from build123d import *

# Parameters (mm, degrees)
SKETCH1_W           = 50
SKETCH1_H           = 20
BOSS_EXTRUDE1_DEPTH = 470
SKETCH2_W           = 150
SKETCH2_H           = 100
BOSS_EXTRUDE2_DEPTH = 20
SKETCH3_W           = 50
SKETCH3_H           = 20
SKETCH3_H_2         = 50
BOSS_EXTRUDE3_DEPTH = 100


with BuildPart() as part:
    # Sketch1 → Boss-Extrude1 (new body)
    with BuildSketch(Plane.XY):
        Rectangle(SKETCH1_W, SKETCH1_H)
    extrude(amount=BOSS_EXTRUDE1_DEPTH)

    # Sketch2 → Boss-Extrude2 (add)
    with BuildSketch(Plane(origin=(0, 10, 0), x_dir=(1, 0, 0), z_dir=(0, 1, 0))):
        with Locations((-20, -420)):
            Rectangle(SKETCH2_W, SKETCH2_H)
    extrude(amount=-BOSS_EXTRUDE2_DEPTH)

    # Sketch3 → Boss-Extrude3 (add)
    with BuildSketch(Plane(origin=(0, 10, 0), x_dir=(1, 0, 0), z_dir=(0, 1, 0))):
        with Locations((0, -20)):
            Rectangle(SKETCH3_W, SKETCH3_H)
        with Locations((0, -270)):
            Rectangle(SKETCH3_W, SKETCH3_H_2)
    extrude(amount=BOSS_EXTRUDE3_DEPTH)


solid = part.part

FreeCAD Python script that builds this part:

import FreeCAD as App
import Part
import Sketcher
from FreeCAD import Vector
Q = App.Units.Quantity


def add_polygon(sketch, points):
    """Adds a closed chain of lines whose ends are joined by coincident constraints."""
    first, n = sketch.GeometryCount, len(points)
    for a, b in zip(points, points[1:] + points[:1]):
        sketch.addGeometry(Part.LineSegment(App.Vector(*a, 0), App.Vector(*b, 0)), False)
    for i in range(n):
        sketch.addConstraint(Sketcher.Constraint("Coincident", first + i, 2, first + (i + 1) % n, 1))

doc = App.newDocument("Part")
body = doc.addObject("PartDesign::Body", "Body")

# Sketch on XY plane
sketch1 = body.newObject("Sketcher::SketchObject", "Sketch")
sketch1.AttachmentSupport = (doc.getObject("XY_Plane"), [""])
sketch1.MapMode = "FlatFace"
add_polygon(sketch1, [(-25, 10), (-25, -10), (25, -10), (25, 10)])  # lines 0-3
sketch1.addConstraint(Sketcher.Constraint("Vertical", 0))
sketch1.addConstraint(Sketcher.Constraint("Horizontal", 1))
sketch1.addConstraint(Sketcher.Constraint("Vertical", 2))
sketch1.addConstraint(Sketcher.Constraint("Horizontal", 3))
sketch1.addConstraint(Sketcher.Constraint("Symmetric", 0, 2, 2, 2, -1, 1))
sketch1.addConstraint(Sketcher.Constraint("DistanceX", 1, 1, 1, 2, Q("50 mm")))
sketch1.addConstraint(Sketcher.Constraint("DistanceY", 0, 2, 0, 1, Q("20 mm")))
pad1 = body.newObject("PartDesign::Pad", "Pad")
pad1.Profile = sketch1
pad1.Length = 470

# Sketch on XZ plane
sketch2 = body.newObject("Sketcher::SketchObject", "Sketch001")
sketch2.AttachmentSupport = (doc.getObject("XZ_Plane"), [""])
sketch2.MapMode = "FlatFace"
sketch2.AttachmentOffset = App.Placement(Vector(0, 0, -10), App.Rotation())
add_polygon(sketch2, [(-95, 370), (-95, 470), (55, 470), (55, 370)])  # lines 0-3
sketch2.addConstraint(Sketcher.Constraint("Vertical", 0))
sketch2.addConstraint(Sketcher.Constraint("Horizontal", 1))
sketch2.addConstraint(Sketcher.Constraint("Vertical", 2))
sketch2.addConstraint(Sketcher.Constraint("Horizontal", 3))
sketch2.addConstraint(Sketcher.Constraint("DistanceX", 1, 1, 1, 2, Q("150 mm")))
sketch2.addConstraint(Sketcher.Constraint("DistanceY", 0, 1, 0, 2, Q("100 mm")))
sketch2.addConstraint(Sketcher.Constraint("DistanceX", 0, 2, -1, 1, Q("95 mm")))
sketch2.addConstraint(Sketcher.Constraint("DistanceY", -1, 1, 0, 2, Q("470 mm")))
pad2 = body.newObject("PartDesign::Pad", "Pad001")
pad2.Profile = sketch2
pad2.Length = 20

# Sketch on XZ plane
sketch3 = body.newObject("Sketcher::SketchObject", "Sketch002")
sketch3.AttachmentSupport = (doc.getObject("XZ_Plane"), [""])
sketch3.MapMode = "FlatFace"
sketch3.AttachmentOffset = App.Placement(Vector(0, 0, -10), App.Rotation())
add_polygon(sketch3, [(-25, 10), (-25, 30), (25, 30), (25, 10)])  # lines 0-3
add_polygon(sketch3, [(-25, 245), (-25, 295), (25, 295), (25, 245)])  # lines 4-7
sketch3.addConstraint(Sketcher.Constraint("Vertical", 0))
sketch3.addConstraint(Sketcher.Constraint("Horizontal", 1))
sketch3.addConstraint(Sketcher.Constraint("Vertical", 2))
sketch3.addConstraint(Sketcher.Constraint("Horizontal", 3))
sketch3.addConstraint(Sketcher.Constraint("Vertical", 4))
sketch3.addConstraint(Sketcher.Constraint("Horizontal", 5))
sketch3.addConstraint(Sketcher.Constraint("Vertical", 6))
sketch3.addConstraint(Sketcher.Constraint("Horizontal", 7))
sketch3.addConstraint(Sketcher.Constraint("Vertical", 3, 2, 4, 2))
sketch3.addConstraint(Sketcher.Constraint("Vertical", 2, 2, 5, 2))
sketch3.addConstraint(Sketcher.Constraint("Equal", 7, 4))
sketch3.addConstraint(Sketcher.Constraint("DistanceX", 1, 1, 1, 2, Q("50 mm")))
sketch3.addConstraint(Sketcher.Constraint("DistanceY", 0, 1, 0, 2, Q("20 mm")))
sketch3.addConstraint(Sketcher.Constraint("DistanceX", 0, 2, -1, 1, Q("25 mm")))
sketch3.addConstraint(Sketcher.Constraint("DistanceY", -1, 1, 0, 2, Q("30 mm")))
sketch3.addConstraint(Sketcher.Constraint("DistanceY", -1, 1, 4, 2, Q("295 mm")))
pad3 = body.newObject("PartDesign::Pad", "Pad002")
pad3.Profile = sketch3
pad3.Length = 100
pad3.Reversed = True

doc.recompute()
